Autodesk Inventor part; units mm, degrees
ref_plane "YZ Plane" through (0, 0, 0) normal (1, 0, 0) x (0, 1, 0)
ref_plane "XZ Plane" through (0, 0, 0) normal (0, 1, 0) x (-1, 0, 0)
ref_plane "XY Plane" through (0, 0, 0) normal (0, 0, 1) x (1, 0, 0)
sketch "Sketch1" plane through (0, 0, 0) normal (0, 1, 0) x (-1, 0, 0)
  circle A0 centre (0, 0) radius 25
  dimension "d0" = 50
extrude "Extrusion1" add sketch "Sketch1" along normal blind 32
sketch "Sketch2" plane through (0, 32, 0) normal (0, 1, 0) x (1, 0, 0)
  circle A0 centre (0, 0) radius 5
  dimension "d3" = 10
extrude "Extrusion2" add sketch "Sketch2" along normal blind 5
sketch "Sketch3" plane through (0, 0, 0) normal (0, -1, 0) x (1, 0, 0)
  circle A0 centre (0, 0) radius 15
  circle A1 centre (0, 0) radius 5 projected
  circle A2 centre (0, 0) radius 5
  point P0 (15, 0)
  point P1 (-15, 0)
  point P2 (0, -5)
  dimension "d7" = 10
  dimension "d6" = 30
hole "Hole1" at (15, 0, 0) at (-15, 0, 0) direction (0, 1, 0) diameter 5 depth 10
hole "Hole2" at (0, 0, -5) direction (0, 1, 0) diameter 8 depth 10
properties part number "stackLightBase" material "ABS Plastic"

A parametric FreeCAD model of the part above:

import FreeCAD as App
import Part
import Sketcher
from FreeCAD import Vector
Q = App.Units.Quantity

doc = App.newDocument("Part")
body = doc.addObject("PartDesign::Body", "Body")

sketch1 = doc.addObject("Sketcher::SketchObject", "Sketch")
body.addObject(sketch1)
sketch1.AttachmentSupport = (doc.XZ_Plane, [""])
sketch1.MapMode = "FlatFace"
sketch1.addGeometry(Part.Circle(Vector(0, 0, 0), Vector(0, 0, 1), 25), False)
sketch1.addConstraint([
    Sketcher.Constraint("Coincident", 0, 3, -1, 1),
    Sketcher.Constraint("Diameter", 0, Q("50 mm")),
])
pad1 = doc.addObject("PartDesign::Pad", "Pad")
body.addObject(pad1)
pad1.Profile = sketch1
pad1.Length = 32
pad1.Reversed = True

sketch2 = doc.addObject("Sketcher::SketchObject", "Sketch001")
body.addObject(sketch2)
sketch2.AttachmentSupport = (doc.XZ_Plane, [""])
sketch2.MapMode = "FlatFace"
sketch2.AttachmentOffset = App.Placement(Vector(0, 0, -32), App.Rotation())
sketch2.addGeometry(Part.Circle(Vector(0, 0, 0), Vector(0, 0, 1), 5), False)
sketch2.addConstraint([
    Sketcher.Constraint("Coincident", 0, 3, -1, 1),
    Sketcher.Constraint("Diameter", 0, Q("10 mm")),
])
pad2 = doc.addObject("PartDesign::Pad", "Pad001")
body.addObject(pad2)
pad2.Profile = sketch2
pad2.Length = 5
pad2.Reversed = True

sketch3 = doc.addObject("Sketcher::SketchObject", "Sketch002")
body.addObject(sketch3)
sketch3.AttachmentSupport = (doc.XZ_Plane, [""])
sketch3.MapMode = "FlatFace"
sketch3.addGeometry([
    Part.Circle(Vector(15, 0, 0), Vector(0, 0, 1), 2.5),
    Part.Circle(Vector(-15, 0, 0), Vector(0, 0, 1), 2.5),
], False)
sketch3.addConstraint([
    Sketcher.Constraint("Equal", 0, 1),
    Sketcher.Constraint("Symmetric", 0, 3, 1, 3, -1, 1),
    Sketcher.Constraint("PointOnObject", 0, 3, -1),
    Sketcher.Constraint("Diameter", 0, Q("5 mm")),
    Sketcher.Constraint("DistanceX", -1, 1, 0, 3, Q("15 mm")),
])
doc.recompute()
hole = doc.addObject("PartDesign::Hole", "Hole")
body.addObject(hole)
hole.Profile = sketch3
hole.ThreadType = "None"
hole.Diameter = 5
hole.DepthType = "Dimension"
hole.Depth = 10
hole.DrillPoint = "Flat"

sketch4 = doc.addObject("Sketcher::SketchObject", "Sketch003")
body.addObject(sketch4)
sketch4.AttachmentSupport = (doc.XZ_Plane, [""])
sketch4.MapMode = "FlatFace"
sketch4.addGeometry(Part.Circle(Vector(0, -5, 0), Vector(0, 0, 1), 4), False)
sketch4.addConstraint([
    Sketcher.Constraint("PointOnObject", 0, 3, -2),
    Sketcher.Constraint("Diameter", 0, Q("8 mm")),
    Sketcher.Constraint("DistanceY", 0, 3, -1, 1, Q("5 mm")),
])
doc.recompute()
hole2 = doc.addObject("PartDesign::Hole", "Hole001")
body.addObject(hole2)
hole2.Profile = sketch4
hole2.ThreadType = "None"
hole2.Diameter = 8
hole2.DepthType = "Dimension"
hole2.Depth = 10
hole2.DrillPoint = "Flat"

doc.recompute()
